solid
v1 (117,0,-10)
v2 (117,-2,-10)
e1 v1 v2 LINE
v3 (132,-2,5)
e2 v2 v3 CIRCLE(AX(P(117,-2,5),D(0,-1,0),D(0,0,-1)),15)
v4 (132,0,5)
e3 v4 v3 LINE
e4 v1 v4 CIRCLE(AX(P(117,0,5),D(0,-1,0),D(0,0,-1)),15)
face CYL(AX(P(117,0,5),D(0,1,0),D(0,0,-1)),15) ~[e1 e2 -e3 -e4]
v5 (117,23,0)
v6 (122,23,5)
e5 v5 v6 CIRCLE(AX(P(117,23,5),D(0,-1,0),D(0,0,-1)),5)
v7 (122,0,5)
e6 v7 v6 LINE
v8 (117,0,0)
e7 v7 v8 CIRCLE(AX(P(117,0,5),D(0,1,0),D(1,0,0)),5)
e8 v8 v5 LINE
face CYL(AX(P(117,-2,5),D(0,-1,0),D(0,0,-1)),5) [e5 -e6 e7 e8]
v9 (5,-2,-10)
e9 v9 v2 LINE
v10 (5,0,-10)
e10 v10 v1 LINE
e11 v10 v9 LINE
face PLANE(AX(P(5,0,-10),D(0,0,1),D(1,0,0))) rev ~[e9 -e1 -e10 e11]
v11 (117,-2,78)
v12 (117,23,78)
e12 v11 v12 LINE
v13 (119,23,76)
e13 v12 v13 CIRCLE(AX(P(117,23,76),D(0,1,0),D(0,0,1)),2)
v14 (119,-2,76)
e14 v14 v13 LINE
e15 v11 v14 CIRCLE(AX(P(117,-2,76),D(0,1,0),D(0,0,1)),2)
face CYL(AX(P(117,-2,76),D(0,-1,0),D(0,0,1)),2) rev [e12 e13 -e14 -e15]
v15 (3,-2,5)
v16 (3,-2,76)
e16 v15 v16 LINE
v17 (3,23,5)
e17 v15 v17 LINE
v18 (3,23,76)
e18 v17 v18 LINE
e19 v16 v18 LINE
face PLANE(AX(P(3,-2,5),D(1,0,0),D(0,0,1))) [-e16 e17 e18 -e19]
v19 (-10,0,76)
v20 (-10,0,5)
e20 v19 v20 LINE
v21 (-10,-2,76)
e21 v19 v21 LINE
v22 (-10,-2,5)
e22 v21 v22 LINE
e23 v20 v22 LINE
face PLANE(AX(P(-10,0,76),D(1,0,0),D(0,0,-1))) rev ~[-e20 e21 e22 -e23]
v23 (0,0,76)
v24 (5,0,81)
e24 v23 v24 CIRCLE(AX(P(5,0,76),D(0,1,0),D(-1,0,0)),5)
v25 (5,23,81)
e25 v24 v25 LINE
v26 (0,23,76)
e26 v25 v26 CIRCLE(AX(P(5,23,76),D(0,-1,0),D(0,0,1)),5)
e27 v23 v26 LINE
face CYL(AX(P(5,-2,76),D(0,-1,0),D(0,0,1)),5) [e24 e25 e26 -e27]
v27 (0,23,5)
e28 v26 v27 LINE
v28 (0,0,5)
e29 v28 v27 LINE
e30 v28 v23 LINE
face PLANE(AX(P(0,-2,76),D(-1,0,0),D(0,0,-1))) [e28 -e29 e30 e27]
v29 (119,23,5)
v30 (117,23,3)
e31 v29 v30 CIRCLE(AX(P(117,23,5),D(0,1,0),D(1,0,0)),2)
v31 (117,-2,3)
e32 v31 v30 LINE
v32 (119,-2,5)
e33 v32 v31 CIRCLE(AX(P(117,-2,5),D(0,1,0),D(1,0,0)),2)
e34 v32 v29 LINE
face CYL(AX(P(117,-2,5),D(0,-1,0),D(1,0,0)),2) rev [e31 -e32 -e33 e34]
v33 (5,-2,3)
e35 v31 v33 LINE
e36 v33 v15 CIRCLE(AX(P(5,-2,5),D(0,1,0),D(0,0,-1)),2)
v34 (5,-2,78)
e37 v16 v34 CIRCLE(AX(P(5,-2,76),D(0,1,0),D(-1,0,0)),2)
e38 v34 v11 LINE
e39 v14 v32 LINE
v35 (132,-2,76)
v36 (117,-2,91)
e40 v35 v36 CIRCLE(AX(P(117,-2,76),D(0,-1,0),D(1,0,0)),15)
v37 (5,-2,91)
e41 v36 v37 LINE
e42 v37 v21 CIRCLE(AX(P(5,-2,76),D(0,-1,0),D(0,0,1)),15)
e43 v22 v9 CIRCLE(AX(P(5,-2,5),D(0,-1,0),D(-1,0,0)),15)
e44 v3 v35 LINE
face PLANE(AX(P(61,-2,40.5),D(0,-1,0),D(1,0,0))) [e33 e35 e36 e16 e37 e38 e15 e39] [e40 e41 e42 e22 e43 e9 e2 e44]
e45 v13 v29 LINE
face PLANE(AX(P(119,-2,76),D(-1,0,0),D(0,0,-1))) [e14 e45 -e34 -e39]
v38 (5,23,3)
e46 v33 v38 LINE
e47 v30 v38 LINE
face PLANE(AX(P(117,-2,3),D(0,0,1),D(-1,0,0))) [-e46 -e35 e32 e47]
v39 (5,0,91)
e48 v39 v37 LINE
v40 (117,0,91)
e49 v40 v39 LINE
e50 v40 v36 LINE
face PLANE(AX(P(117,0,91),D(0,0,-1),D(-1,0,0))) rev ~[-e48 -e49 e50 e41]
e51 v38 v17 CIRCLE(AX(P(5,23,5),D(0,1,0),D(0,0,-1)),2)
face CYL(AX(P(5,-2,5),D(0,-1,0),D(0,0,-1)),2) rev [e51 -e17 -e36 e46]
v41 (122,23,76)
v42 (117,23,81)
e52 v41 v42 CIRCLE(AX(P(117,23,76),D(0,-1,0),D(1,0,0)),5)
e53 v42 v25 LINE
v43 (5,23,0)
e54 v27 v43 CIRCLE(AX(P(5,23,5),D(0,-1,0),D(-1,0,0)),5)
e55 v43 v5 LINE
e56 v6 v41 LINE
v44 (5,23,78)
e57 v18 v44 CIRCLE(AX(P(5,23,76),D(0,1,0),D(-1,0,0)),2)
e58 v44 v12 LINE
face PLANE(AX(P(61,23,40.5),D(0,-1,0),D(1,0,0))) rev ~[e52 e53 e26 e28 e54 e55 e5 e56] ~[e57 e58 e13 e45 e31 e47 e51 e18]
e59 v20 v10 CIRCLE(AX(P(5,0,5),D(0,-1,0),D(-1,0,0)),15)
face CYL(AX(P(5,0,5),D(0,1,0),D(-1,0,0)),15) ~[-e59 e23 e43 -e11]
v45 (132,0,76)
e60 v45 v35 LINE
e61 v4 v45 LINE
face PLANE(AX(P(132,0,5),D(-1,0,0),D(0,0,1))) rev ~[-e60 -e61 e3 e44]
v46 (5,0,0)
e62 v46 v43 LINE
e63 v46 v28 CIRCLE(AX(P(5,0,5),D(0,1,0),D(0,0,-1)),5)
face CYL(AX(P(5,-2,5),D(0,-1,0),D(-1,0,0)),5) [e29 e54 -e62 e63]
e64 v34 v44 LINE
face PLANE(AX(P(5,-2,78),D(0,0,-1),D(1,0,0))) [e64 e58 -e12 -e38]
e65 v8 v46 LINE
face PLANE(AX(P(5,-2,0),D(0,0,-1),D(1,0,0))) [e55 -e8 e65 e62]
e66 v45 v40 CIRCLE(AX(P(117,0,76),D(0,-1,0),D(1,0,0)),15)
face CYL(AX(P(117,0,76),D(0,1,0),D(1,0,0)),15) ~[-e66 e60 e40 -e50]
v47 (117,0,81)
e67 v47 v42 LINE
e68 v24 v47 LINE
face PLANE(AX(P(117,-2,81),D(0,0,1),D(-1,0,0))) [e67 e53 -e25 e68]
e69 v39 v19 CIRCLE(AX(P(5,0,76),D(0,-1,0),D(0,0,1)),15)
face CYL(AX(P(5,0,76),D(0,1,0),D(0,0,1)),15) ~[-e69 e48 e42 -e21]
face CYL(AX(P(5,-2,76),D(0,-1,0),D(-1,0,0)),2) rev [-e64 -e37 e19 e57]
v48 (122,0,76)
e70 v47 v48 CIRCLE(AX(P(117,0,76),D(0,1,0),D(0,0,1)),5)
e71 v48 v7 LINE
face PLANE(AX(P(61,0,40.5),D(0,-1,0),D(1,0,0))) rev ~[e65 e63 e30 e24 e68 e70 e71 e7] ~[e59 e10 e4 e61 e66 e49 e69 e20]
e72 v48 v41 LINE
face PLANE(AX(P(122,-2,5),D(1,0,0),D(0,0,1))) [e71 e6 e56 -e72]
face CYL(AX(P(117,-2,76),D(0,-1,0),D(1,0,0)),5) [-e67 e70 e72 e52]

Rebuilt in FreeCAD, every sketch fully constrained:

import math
import FreeCAD as App
import Part
import Sketcher
from FreeCAD import Vector

doc = App.newDocument("Part")
body = doc.addObject("PartDesign::Body", "Body")

# Sketch on XZ plane
sketch1 = body.newObject("Sketcher::SketchObject", "Sketch")
sketch1.AttachmentSupport = (doc.getObject("XZ_Plane"), [""])
sketch1.MapMode = "FlatFace"
sketch1.addGeometry([
    Part.LineSegment(Vector(117, 91, 0), Vector(5, 91, 0)),  # 0
    Part.ArcOfCircle(Part.Circle(Vector(5, 76, 0), Vector(0, 0, 1), 15), math.radians(90), math.radians(180)),  # 1
    Part.LineSegment(Vector(-10, 76, 0), Vector(-10, 5, 0)),  # 2
    Part.ArcOfCircle(Part.Circle(Vector(5, 5, 0), Vector(0, 0, 1), 15), math.radians(180), math.radians(270)),  # 3
    Part.LineSegment(Vector(5, -10, 0), Vector(117, -10, 0)),  # 4
    Part.ArcOfCircle(Part.Circle(Vector(117, 5, 0), Vector(0, 0, 1), 15), math.radians(-90), math.radians(0)),  # 5
    Part.LineSegment(Vector(132, 5, 0), Vector(132, 76, 0)),  # 6
    Part.ArcOfCircle(Part.Circle(Vector(117, 76, 0), Vector(0, 0, 1), 15), math.radians(0), math.radians(90)),  # 7
    Part.ArcOfCircle(Part.Circle(Vector(117, 5, 0), Vector(0, 0, 1), 5), math.radians(-90), math.radians(0)),  # 8
    Part.LineSegment(Vector(117, 0, 0), Vector(5, 0, 0)),  # 9
    Part.ArcOfCircle(Part.Circle(Vector(5, 5, 0), Vector(0, 0, 1), 5), math.radians(180), math.radians(270)),  # 10
    Part.LineSegment(Vector(0, 5, 0), Vector(0, 76, 0)),  # 11
    Part.ArcOfCircle(Part.Circle(Vector(5, 76, 0), Vector(0, 0, 1), 5), math.radians(90), math.radians(180)),  # 12
    Part.LineSegment(Vector(5, 81, 0), Vector(117, 81, 0)),  # 13
    Part.ArcOfCircle(Part.Circle(Vector(117, 76, 0), Vector(0, 0, 1), 5), math.radians(0), math.radians(90)),  # 14
    Part.LineSegment(Vector(122, 76, 0), Vector(122, 5, 0)),  # 15
], False)
sketch1.addConstraint([
    Sketcher.Constraint("Tangent", 0, 2, 1, 1),
    Sketcher.Constraint("Tangent", 1, 2, 2, 1),
    Sketcher.Constraint("Tangent", 2, 2, 3, 1),
    Sketcher.Constraint("Tangent", 3, 2, 4, 1),
    Sketcher.Constraint("Tangent", 4, 2, 5, 1),
    Sketcher.Constraint("Tangent", 5, 2, 6, 1),
    Sketcher.Constraint("Tangent", 6, 2, 7, 1),
    Sketcher.Constraint("Tangent", 7, 2, 0, 1),
    Sketcher.Constraint("Tangent", 8, 1, 9, 1),
    Sketcher.Constraint("Tangent", 9, 2, 10, 2),
    Sketcher.Constraint("Tangent", 10, 1, 11, 1),
    Sketcher.Constraint("Tangent", 11, 2, 12, 2),
    Sketcher.Constraint("Tangent", 12, 1, 13, 1),
    Sketcher.Constraint("Tangent", 13, 2, 14, 2),
    Sketcher.Constraint("Tangent", 14, 1, 15, 1),
    Sketcher.Constraint("Tangent", 15, 2, 8, 2),
    Sketcher.Constraint("Horizontal", 0),
    Sketcher.Constraint("Vertical", 2),
    Sketcher.Constraint("Horizontal", 4),
    Sketcher.Constraint("Vertical", 6),
    Sketcher.Constraint("Horizontal", 9),
    Sketcher.Constraint("Vertical", 11),
    Sketcher.Constraint("Horizontal", 13),
    Sketcher.Constraint("Vertical", 15),
    Sketcher.Constraint("Coincident", 8, 3, 5, 3),
    Sketcher.Constraint("Coincident", 10, 3, 3, 3),
    Sketcher.Constraint("Coincident", 12, 3, 1, 3),
    Sketcher.Constraint("Equal", 1, 3),
    Sketcher.Constraint("Equal", 3, 5),
    Sketcher.Constraint("Equal", 5, 7),
    Sketcher.Constraint("Equal", 12, 14),
    Sketcher.Constraint("PointOnObject", 8, 1, -1),
    Sketcher.Constraint("PointOnObject", 10, 1, -2),
    Sketcher.Constraint("Radius", 1, 15.0),
    Sketcher.Constraint("Radius", 8, 5.0),
    Sketcher.Constraint("DistanceX", 0, 2, 0, 1, 112.0),
    Sketcher.Constraint("DistanceY", 2, 2, 2, 1, 71.0),
])
pad1 = body.newObject("PartDesign::Pad", "Pad")
pad1.Profile = sketch1
pad1.Length = 2

# Sketch on XZ plane
sketch2 = body.newObject("Sketcher::SketchObject", "Sketch001")
sketch2.AttachmentSupport = (doc.getObject("XZ_Plane"), [""])
sketch2.MapMode = "FlatFace"
sketch2.AttachmentOffset = App.Placement(Vector(0, 0, 2), App.Rotation())
sketch2.addGeometry([
    Part.LineSegment(Vector(117, 81, 0), Vector(5, 81, 0)),  # 0
    Part.ArcOfCircle(Part.Circle(Vector(5, 76, 0), Vector(0, 0, 1), 5), math.radians(90), math.radians(180)),  # 1
    Part.LineSegment(Vector(0, 76, 0), Vector(0, 5, 0)),  # 2
    Part.ArcOfCircle(Part.Circle(Vector(5, 5, 0), Vector(0, 0, 1), 5), math.radians(180), math.radians(270)),  # 3
    Part.LineSegment(Vector(5, 0, 0), Vector(117, 0, 0)),  # 4
    Part.ArcOfCircle(Part.Circle(Vector(117, 5, 0), Vector(0, 0, 1), 5), math.radians(-90), math.radians(0)),  # 5
    Part.LineSegment(Vector(122, 5, 0), Vector(122, 76, 0)),  # 6
    Part.ArcOfCircle(Part.Circle(Vector(117, 76, 0), Vector(0, 0, 1), 5), math.radians(0), math.radians(90)),  # 7
    Part.LineSegment(Vector(3, 5, 0), Vector(3, 76, 0)),  # 8
    Part.ArcOfCircle(Part.Circle(Vector(5, 76, 0), Vector(0, 0, 1), 2), math.radians(90), math.radians(180)),  # 9
    Part.LineSegment(Vector(5, 78, 0), Vector(117, 78, 0)),  # 10
    Part.ArcOfCircle(Part.Circle(Vector(117, 76, 0), Vector(0, 0, 1), 2), math.radians(0), math.radians(90)),  # 11
    Part.LineSegment(Vector(119, 76, 0), Vector(119, 5, 0)),  # 12
    Part.ArcOfCircle(Part.Circle(Vector(117, 5, 0), Vector(0, 0, 1), 2), math.radians(-90), math.radians(0)),  # 13
    Part.LineSegment(Vector(117, 3, 0), Vector(5, 3, 0)),  # 14
    Part.ArcOfCircle(Part.Circle(Vector(5, 5, 0), Vector(0, 0, 1), 2), math.radians(180), math.radians(270)),  # 15
], False)
sketch2.addConstraint([
    Sketcher.Constraint("Tangent", 0, 2, 1, 1),
    Sketcher.Constraint("Tangent", 1, 2, 2, 1),
    Sketcher.Constraint("Tangent", 2, 2, 3, 1),
    Sketcher.Constraint("Tangent", 3, 2, 4, 1),
    Sketcher.Constraint("Tangent", 4, 2, 5, 1),
    Sketcher.Constraint("Tangent", 5, 2, 6, 1),
    Sketcher.Constraint("Tangent", 6, 2, 7, 1),
    Sketcher.Constraint("Tangent", 7, 2, 0, 1),
    Sketcher.Constraint("Tangent", 8, 2, 9, 2),
    Sketcher.Constraint("Tangent", 9, 1, 10, 1),
    Sketcher.Constraint("Tangent", 10, 2, 11, 2),
    Sketcher.Constraint("Tangent", 11, 1, 12, 1),
    Sketcher.Constraint("Tangent", 12, 2, 13, 2),
    Sketcher.Constraint("Tangent", 13, 1, 14, 1),
    Sketcher.Constraint("Tangent", 14, 2, 15, 2),
    Sketcher.Constraint("Tangent", 15, 1, 8, 1),
    Sketcher.Constraint("Horizontal", 0),
    Sketcher.Constraint("Vertical", 2),
    Sketcher.Constraint("Horizontal", 4),
    Sketcher.Constraint("Vertical", 6),
    Sketcher.Constraint("Vertical", 8),
    Sketcher.Constraint("Horizontal", 10),
    Sketcher.Constraint("Vertical", 12),
    Sketcher.Constraint("Horizontal", 14),
    Sketcher.Constraint("Coincident", 9, 3, 1, 3),
    Sketcher.Constraint("Coincident", 11, 3, 7, 3),
    Sketcher.Constraint("Coincident", 13, 3, 5, 3),
    Sketcher.Constraint("Equal", 1, 3),
    Sketcher.Constraint("Equal", 3, 5),
    Sketcher.Constraint("Equal", 5, 7),
    Sketcher.Constraint("Equal", 13, 15),
    Sketcher.Constraint("PointOnObject", 1, 2, -2),
    Sketcher.Constraint("PointOnObject", 3, 2, -1),
    Sketcher.Constraint("Radius", 1, 5.0),
    Sketcher.Constraint("Radius", 9, 2.0),
    Sketcher.Constraint("DistanceX", 0, 2, 0, 1, 112.0),
    Sketcher.Constraint("DistanceY", 2, 2, 2, 1, 71.0),
])
pad2 = body.newObject("PartDesign::Pad", "Pad001")
pad2.Profile = sketch2
pad2.Length = 25
pad2.Reversed = True

doc.recompute()
